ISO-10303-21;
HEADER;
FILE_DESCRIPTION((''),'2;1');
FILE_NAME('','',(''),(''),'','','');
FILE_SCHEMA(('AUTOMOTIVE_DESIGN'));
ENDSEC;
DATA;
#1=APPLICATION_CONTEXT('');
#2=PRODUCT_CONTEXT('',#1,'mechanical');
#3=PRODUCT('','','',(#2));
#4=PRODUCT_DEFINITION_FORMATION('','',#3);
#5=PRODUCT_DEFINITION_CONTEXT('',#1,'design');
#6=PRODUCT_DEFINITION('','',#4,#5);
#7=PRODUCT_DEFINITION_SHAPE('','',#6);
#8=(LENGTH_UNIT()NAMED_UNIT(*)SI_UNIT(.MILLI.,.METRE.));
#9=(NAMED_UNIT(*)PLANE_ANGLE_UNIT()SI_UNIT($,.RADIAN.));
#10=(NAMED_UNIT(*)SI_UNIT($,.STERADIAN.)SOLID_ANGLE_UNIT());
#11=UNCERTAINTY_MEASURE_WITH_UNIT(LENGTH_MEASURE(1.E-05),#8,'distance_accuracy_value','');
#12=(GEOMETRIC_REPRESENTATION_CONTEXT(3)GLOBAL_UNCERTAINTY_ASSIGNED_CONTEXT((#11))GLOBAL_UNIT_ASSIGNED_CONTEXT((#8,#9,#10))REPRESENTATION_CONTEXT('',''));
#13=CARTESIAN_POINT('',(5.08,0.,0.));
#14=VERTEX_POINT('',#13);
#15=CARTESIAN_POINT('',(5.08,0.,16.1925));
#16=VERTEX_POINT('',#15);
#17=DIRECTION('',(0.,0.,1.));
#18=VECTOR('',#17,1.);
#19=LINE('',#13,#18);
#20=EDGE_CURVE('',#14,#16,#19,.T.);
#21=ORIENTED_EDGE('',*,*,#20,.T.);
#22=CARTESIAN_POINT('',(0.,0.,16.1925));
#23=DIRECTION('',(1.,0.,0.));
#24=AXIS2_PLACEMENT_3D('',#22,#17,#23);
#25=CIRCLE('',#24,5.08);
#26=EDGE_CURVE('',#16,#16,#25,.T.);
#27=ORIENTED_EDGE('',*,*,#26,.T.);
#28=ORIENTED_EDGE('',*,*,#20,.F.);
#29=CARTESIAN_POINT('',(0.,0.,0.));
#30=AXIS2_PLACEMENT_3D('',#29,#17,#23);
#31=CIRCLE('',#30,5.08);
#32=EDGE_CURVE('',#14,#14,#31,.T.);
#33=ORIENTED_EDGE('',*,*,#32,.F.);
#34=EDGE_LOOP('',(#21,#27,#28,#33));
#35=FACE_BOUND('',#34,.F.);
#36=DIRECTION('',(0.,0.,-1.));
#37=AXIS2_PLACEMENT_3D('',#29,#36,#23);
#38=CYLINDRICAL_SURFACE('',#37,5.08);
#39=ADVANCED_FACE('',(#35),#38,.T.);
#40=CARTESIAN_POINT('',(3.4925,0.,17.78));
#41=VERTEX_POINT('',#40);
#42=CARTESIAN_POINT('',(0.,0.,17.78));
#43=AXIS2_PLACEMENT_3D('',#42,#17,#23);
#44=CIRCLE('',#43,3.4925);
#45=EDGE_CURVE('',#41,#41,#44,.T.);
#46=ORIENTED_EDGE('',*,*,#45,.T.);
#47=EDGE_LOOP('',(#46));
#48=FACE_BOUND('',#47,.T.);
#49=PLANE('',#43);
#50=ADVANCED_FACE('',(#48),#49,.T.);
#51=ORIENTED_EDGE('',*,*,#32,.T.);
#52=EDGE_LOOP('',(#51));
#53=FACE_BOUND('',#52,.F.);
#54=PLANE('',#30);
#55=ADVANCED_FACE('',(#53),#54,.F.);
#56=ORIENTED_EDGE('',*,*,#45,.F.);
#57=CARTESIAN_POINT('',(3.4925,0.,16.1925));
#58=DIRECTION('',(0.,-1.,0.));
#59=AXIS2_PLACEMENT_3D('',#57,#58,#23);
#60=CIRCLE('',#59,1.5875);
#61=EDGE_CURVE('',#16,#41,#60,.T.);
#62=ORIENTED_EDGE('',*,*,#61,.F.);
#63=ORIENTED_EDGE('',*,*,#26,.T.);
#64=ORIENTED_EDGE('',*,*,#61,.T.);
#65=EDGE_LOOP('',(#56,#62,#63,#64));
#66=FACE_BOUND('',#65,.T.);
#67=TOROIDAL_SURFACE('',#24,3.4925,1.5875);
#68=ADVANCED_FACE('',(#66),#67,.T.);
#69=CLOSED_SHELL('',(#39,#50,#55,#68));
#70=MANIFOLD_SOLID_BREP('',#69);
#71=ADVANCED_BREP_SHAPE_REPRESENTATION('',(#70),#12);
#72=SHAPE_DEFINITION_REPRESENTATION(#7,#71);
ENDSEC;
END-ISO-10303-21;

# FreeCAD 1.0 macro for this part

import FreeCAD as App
import Part
import Sketcher
from FreeCAD import Vector
Q = App.Units.Quantity


def edges_at(feature, points):
    """Names of the edges that pass closest to the given points."""
    edges = feature.Shape.Edges
    near = lambda p: min(range(len(edges)), key=lambda i: edges[i].distToShape(Part.Vertex(*p))[0])
    return sorted({f"Edge{near(p) + 1}" for p in points})

doc = App.newDocument("Part")
body = doc.addObject("PartDesign::Body", "Body")

# Sketch on XY plane
sketch1 = doc.addObject("Sketcher::SketchObject", "Sketch")
body.addObject(sketch1)
sketch1.AttachmentSupport = (doc.XY_Plane, [""])
sketch1.MapMode = "FlatFace"
sketch1.addGeometry(Part.Circle(Vector(0, 0, 0), Vector(0, 0, 1), 5), False)
sketch1.addConstraint(Sketcher.Constraint("Coincident", 0, 3, -1, 1))
sketch1.addConstraint(Sketcher.Constraint("Diameter", 0, Q("0.4 in")))
pad1 = doc.addObject("PartDesign::Pad", "Pad")
body.addObject(pad1)
pad1.Profile = sketch1
pad1.Length = Q("0.7 in")
doc.recompute()

fillet = doc.addObject("PartDesign::Fillet", "Fillet")
body.addObject(fillet)
fillet.Base = (pad1, edges_at(pad1, [(-5.08, 0, 17.78)]))
fillet.Radius = Q("0.0625 in")

doc.recompute()
